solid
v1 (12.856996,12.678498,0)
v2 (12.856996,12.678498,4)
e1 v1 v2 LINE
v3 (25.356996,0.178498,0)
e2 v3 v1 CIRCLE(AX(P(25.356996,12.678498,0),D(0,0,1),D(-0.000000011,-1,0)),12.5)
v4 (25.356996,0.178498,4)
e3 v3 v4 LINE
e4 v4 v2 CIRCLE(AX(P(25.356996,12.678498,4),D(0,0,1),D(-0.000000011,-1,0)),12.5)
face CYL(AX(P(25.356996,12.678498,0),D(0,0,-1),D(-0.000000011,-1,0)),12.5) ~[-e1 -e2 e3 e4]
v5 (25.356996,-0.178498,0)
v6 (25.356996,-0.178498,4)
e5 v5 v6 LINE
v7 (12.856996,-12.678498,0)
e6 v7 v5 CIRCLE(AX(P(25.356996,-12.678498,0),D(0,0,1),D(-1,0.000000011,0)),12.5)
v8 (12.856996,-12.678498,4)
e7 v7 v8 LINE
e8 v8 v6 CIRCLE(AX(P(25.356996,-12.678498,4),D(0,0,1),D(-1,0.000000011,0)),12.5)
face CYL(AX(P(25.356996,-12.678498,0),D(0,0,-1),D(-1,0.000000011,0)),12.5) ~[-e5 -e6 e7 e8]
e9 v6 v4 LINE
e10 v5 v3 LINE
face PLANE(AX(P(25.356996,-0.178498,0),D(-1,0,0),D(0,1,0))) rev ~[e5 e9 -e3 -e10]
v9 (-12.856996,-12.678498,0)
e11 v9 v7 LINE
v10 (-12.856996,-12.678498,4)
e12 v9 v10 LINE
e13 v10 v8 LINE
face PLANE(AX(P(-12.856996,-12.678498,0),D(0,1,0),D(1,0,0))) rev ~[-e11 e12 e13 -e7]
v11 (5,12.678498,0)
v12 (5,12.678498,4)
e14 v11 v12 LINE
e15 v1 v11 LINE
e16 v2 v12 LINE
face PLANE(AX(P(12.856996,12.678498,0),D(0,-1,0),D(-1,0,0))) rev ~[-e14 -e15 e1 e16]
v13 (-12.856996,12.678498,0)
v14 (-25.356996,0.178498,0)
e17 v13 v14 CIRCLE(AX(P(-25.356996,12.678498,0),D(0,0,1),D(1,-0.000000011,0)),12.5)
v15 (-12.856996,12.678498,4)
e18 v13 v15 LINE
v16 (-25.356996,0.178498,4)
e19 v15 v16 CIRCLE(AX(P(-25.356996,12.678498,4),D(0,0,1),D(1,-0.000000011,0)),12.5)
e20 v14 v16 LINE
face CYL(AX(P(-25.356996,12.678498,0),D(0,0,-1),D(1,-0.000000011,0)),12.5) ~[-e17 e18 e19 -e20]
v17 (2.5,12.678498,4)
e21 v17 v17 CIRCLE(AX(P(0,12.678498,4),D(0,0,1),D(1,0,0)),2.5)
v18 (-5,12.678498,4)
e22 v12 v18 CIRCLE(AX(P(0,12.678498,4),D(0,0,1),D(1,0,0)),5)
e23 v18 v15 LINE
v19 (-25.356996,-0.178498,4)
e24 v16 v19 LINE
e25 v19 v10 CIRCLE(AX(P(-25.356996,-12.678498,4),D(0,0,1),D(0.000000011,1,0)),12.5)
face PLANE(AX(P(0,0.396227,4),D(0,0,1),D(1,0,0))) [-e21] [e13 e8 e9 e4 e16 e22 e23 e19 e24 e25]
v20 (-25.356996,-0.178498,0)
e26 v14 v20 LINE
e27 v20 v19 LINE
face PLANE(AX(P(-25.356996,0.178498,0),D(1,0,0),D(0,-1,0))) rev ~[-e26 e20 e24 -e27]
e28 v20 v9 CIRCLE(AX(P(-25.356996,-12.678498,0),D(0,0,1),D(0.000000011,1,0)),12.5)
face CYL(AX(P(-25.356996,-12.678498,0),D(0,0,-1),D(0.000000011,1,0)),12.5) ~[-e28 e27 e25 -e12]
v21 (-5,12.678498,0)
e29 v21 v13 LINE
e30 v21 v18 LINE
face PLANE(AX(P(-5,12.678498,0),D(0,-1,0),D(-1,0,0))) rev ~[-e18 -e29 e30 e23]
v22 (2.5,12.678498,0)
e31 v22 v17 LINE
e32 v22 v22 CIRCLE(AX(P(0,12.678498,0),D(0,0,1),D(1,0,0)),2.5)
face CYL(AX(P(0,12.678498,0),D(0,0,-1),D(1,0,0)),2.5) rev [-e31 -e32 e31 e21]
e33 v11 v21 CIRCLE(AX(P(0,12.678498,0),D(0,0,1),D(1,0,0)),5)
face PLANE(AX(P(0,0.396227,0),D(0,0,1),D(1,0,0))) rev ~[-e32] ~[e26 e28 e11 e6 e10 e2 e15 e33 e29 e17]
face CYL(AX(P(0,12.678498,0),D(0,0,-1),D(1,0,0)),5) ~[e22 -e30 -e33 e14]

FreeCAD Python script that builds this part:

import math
import FreeCAD as App
import Part
import Sketcher

V = App.Vector

doc = App.newDocument("Part")
body = doc.addObject("PartDesign::Body", "Body")

# Sketch on XY plane
sketch1 = body.newObject("Sketcher::SketchObject", "Sketch")
sketch1.AttachmentSupport = (doc.getObject("XY_Plane"), [""])
sketch1.MapMode = "FlatFace"
sketch1.addGeometry([
    Part.LineSegment(V(-12.86, -12.68, 0), V(12.86, -12.68, 0)),  # 0
    Part.ArcOfCircle(Part.Circle(V(25.36, -12.68, 0), V(0, 0, 1), 12.5), math.radians(180), math.radians(450)),  # 1
    Part.LineSegment(V(25.36, -0.18, 0), V(25.36, 0.18, 0)),  # 2
    Part.ArcOfCircle(Part.Circle(V(25.36, 12.68, 0), V(0, 0, 1), 12.5), math.radians(-90), math.radians(180)),  # 3
    Part.LineSegment(V(12.86, 12.68, 0), V(5, 12.68, 0)),  # 4
    Part.ArcOfCircle(Part.Circle(V(0, 12.68, 0), V(0, 0, 1), 5), math.radians(0), math.radians(180)),  # 5
    Part.LineSegment(V(-5, 12.68, 0), V(-12.86, 12.68, 0)),  # 6
    Part.ArcOfCircle(Part.Circle(V(-25.36, 12.68, 0), V(0, 0, 1), 12.5), math.radians(0), math.radians(270)),  # 7
    Part.LineSegment(V(-25.36, 0.18, 0), V(-25.36, -0.18, 0)),  # 8
    Part.ArcOfCircle(Part.Circle(V(-25.36, -12.68, 0), V(0, 0, 1), 12.5), math.radians(90), math.radians(360)),  # 9
    Part.Circle(V(0, 12.68, 0), V(0, 0, 1), 2.5),  # 10
], False)
sketch1.addConstraint([
    Sketcher.Constraint("Coincident", 0, 2, 1, 1),
    Sketcher.Constraint("Coincident", 1, 2, 2, 1),
    Sketcher.Constraint("Coincident", 2, 2, 3, 1),
    Sketcher.Constraint("Coincident", 3, 2, 4, 1),
    Sketcher.Constraint("Coincident", 4, 2, 5, 1),
    Sketcher.Constraint("Coincident", 5, 2, 6, 1),
    Sketcher.Constraint("Coincident", 6, 2, 7, 1),
    Sketcher.Constraint("Coincident", 7, 2, 8, 1),
    Sketcher.Constraint("Coincident", 8, 2, 9, 1),
    Sketcher.Constraint("Coincident", 9, 2, 0, 1),
    Sketcher.Constraint("Horizontal", 0),
    Sketcher.Constraint("Vertical", 2),
    Sketcher.Constraint("Horizontal", 4),
    Sketcher.Constraint("Horizontal", 6),
    Sketcher.Constraint("Vertical", 8),
    Sketcher.Constraint("Coincident", 10, 3, 5, 3),
    Sketcher.Constraint("Equal", 1, 3),
    Sketcher.Constraint("Equal", 3, 7),
    Sketcher.Constraint("Equal", 7, 9),
    Sketcher.Constraint("Symmetric", 1, 3, 7, 3, -1, 1),
    Sketcher.Constraint("Symmetric", 3, 3, 9, 3, -1, 1),
    Sketcher.Constraint("Symmetric", 3, 3, 7, 3, -2),
    Sketcher.Constraint("Symmetric", 4, 2, 5, 2, -2),
    Sketcher.Constraint("Horizontal", 3, 3, 5, 3),
    Sketcher.Constraint("Horizontal", 9, 3, 0, 2),
    Sketcher.Constraint("Horizontal", 10, 3, 3, 2),
    Sketcher.Constraint("Vertical", 3, 3, 1, 2),
    Sketcher.Constraint("Vertical", 9, 3, 7, 2),
    Sketcher.Constraint("Diameter", 10, 5.0),
    Sketcher.Constraint("Radius", 5, 5.0),
    Sketcher.Constraint("Radius", 1, 12.5),
    Sketcher.Constraint("DistanceY", 1, 3, -1, 1, 12.678498),
    Sketcher.Constraint("DistanceX", 0, 1, 0, 2, 25.713992),
])
pad1 = body.newObject("PartDesign::Pad", "Pad")
pad1.Profile = sketch1
pad1.Length = 4

doc.recompute()
